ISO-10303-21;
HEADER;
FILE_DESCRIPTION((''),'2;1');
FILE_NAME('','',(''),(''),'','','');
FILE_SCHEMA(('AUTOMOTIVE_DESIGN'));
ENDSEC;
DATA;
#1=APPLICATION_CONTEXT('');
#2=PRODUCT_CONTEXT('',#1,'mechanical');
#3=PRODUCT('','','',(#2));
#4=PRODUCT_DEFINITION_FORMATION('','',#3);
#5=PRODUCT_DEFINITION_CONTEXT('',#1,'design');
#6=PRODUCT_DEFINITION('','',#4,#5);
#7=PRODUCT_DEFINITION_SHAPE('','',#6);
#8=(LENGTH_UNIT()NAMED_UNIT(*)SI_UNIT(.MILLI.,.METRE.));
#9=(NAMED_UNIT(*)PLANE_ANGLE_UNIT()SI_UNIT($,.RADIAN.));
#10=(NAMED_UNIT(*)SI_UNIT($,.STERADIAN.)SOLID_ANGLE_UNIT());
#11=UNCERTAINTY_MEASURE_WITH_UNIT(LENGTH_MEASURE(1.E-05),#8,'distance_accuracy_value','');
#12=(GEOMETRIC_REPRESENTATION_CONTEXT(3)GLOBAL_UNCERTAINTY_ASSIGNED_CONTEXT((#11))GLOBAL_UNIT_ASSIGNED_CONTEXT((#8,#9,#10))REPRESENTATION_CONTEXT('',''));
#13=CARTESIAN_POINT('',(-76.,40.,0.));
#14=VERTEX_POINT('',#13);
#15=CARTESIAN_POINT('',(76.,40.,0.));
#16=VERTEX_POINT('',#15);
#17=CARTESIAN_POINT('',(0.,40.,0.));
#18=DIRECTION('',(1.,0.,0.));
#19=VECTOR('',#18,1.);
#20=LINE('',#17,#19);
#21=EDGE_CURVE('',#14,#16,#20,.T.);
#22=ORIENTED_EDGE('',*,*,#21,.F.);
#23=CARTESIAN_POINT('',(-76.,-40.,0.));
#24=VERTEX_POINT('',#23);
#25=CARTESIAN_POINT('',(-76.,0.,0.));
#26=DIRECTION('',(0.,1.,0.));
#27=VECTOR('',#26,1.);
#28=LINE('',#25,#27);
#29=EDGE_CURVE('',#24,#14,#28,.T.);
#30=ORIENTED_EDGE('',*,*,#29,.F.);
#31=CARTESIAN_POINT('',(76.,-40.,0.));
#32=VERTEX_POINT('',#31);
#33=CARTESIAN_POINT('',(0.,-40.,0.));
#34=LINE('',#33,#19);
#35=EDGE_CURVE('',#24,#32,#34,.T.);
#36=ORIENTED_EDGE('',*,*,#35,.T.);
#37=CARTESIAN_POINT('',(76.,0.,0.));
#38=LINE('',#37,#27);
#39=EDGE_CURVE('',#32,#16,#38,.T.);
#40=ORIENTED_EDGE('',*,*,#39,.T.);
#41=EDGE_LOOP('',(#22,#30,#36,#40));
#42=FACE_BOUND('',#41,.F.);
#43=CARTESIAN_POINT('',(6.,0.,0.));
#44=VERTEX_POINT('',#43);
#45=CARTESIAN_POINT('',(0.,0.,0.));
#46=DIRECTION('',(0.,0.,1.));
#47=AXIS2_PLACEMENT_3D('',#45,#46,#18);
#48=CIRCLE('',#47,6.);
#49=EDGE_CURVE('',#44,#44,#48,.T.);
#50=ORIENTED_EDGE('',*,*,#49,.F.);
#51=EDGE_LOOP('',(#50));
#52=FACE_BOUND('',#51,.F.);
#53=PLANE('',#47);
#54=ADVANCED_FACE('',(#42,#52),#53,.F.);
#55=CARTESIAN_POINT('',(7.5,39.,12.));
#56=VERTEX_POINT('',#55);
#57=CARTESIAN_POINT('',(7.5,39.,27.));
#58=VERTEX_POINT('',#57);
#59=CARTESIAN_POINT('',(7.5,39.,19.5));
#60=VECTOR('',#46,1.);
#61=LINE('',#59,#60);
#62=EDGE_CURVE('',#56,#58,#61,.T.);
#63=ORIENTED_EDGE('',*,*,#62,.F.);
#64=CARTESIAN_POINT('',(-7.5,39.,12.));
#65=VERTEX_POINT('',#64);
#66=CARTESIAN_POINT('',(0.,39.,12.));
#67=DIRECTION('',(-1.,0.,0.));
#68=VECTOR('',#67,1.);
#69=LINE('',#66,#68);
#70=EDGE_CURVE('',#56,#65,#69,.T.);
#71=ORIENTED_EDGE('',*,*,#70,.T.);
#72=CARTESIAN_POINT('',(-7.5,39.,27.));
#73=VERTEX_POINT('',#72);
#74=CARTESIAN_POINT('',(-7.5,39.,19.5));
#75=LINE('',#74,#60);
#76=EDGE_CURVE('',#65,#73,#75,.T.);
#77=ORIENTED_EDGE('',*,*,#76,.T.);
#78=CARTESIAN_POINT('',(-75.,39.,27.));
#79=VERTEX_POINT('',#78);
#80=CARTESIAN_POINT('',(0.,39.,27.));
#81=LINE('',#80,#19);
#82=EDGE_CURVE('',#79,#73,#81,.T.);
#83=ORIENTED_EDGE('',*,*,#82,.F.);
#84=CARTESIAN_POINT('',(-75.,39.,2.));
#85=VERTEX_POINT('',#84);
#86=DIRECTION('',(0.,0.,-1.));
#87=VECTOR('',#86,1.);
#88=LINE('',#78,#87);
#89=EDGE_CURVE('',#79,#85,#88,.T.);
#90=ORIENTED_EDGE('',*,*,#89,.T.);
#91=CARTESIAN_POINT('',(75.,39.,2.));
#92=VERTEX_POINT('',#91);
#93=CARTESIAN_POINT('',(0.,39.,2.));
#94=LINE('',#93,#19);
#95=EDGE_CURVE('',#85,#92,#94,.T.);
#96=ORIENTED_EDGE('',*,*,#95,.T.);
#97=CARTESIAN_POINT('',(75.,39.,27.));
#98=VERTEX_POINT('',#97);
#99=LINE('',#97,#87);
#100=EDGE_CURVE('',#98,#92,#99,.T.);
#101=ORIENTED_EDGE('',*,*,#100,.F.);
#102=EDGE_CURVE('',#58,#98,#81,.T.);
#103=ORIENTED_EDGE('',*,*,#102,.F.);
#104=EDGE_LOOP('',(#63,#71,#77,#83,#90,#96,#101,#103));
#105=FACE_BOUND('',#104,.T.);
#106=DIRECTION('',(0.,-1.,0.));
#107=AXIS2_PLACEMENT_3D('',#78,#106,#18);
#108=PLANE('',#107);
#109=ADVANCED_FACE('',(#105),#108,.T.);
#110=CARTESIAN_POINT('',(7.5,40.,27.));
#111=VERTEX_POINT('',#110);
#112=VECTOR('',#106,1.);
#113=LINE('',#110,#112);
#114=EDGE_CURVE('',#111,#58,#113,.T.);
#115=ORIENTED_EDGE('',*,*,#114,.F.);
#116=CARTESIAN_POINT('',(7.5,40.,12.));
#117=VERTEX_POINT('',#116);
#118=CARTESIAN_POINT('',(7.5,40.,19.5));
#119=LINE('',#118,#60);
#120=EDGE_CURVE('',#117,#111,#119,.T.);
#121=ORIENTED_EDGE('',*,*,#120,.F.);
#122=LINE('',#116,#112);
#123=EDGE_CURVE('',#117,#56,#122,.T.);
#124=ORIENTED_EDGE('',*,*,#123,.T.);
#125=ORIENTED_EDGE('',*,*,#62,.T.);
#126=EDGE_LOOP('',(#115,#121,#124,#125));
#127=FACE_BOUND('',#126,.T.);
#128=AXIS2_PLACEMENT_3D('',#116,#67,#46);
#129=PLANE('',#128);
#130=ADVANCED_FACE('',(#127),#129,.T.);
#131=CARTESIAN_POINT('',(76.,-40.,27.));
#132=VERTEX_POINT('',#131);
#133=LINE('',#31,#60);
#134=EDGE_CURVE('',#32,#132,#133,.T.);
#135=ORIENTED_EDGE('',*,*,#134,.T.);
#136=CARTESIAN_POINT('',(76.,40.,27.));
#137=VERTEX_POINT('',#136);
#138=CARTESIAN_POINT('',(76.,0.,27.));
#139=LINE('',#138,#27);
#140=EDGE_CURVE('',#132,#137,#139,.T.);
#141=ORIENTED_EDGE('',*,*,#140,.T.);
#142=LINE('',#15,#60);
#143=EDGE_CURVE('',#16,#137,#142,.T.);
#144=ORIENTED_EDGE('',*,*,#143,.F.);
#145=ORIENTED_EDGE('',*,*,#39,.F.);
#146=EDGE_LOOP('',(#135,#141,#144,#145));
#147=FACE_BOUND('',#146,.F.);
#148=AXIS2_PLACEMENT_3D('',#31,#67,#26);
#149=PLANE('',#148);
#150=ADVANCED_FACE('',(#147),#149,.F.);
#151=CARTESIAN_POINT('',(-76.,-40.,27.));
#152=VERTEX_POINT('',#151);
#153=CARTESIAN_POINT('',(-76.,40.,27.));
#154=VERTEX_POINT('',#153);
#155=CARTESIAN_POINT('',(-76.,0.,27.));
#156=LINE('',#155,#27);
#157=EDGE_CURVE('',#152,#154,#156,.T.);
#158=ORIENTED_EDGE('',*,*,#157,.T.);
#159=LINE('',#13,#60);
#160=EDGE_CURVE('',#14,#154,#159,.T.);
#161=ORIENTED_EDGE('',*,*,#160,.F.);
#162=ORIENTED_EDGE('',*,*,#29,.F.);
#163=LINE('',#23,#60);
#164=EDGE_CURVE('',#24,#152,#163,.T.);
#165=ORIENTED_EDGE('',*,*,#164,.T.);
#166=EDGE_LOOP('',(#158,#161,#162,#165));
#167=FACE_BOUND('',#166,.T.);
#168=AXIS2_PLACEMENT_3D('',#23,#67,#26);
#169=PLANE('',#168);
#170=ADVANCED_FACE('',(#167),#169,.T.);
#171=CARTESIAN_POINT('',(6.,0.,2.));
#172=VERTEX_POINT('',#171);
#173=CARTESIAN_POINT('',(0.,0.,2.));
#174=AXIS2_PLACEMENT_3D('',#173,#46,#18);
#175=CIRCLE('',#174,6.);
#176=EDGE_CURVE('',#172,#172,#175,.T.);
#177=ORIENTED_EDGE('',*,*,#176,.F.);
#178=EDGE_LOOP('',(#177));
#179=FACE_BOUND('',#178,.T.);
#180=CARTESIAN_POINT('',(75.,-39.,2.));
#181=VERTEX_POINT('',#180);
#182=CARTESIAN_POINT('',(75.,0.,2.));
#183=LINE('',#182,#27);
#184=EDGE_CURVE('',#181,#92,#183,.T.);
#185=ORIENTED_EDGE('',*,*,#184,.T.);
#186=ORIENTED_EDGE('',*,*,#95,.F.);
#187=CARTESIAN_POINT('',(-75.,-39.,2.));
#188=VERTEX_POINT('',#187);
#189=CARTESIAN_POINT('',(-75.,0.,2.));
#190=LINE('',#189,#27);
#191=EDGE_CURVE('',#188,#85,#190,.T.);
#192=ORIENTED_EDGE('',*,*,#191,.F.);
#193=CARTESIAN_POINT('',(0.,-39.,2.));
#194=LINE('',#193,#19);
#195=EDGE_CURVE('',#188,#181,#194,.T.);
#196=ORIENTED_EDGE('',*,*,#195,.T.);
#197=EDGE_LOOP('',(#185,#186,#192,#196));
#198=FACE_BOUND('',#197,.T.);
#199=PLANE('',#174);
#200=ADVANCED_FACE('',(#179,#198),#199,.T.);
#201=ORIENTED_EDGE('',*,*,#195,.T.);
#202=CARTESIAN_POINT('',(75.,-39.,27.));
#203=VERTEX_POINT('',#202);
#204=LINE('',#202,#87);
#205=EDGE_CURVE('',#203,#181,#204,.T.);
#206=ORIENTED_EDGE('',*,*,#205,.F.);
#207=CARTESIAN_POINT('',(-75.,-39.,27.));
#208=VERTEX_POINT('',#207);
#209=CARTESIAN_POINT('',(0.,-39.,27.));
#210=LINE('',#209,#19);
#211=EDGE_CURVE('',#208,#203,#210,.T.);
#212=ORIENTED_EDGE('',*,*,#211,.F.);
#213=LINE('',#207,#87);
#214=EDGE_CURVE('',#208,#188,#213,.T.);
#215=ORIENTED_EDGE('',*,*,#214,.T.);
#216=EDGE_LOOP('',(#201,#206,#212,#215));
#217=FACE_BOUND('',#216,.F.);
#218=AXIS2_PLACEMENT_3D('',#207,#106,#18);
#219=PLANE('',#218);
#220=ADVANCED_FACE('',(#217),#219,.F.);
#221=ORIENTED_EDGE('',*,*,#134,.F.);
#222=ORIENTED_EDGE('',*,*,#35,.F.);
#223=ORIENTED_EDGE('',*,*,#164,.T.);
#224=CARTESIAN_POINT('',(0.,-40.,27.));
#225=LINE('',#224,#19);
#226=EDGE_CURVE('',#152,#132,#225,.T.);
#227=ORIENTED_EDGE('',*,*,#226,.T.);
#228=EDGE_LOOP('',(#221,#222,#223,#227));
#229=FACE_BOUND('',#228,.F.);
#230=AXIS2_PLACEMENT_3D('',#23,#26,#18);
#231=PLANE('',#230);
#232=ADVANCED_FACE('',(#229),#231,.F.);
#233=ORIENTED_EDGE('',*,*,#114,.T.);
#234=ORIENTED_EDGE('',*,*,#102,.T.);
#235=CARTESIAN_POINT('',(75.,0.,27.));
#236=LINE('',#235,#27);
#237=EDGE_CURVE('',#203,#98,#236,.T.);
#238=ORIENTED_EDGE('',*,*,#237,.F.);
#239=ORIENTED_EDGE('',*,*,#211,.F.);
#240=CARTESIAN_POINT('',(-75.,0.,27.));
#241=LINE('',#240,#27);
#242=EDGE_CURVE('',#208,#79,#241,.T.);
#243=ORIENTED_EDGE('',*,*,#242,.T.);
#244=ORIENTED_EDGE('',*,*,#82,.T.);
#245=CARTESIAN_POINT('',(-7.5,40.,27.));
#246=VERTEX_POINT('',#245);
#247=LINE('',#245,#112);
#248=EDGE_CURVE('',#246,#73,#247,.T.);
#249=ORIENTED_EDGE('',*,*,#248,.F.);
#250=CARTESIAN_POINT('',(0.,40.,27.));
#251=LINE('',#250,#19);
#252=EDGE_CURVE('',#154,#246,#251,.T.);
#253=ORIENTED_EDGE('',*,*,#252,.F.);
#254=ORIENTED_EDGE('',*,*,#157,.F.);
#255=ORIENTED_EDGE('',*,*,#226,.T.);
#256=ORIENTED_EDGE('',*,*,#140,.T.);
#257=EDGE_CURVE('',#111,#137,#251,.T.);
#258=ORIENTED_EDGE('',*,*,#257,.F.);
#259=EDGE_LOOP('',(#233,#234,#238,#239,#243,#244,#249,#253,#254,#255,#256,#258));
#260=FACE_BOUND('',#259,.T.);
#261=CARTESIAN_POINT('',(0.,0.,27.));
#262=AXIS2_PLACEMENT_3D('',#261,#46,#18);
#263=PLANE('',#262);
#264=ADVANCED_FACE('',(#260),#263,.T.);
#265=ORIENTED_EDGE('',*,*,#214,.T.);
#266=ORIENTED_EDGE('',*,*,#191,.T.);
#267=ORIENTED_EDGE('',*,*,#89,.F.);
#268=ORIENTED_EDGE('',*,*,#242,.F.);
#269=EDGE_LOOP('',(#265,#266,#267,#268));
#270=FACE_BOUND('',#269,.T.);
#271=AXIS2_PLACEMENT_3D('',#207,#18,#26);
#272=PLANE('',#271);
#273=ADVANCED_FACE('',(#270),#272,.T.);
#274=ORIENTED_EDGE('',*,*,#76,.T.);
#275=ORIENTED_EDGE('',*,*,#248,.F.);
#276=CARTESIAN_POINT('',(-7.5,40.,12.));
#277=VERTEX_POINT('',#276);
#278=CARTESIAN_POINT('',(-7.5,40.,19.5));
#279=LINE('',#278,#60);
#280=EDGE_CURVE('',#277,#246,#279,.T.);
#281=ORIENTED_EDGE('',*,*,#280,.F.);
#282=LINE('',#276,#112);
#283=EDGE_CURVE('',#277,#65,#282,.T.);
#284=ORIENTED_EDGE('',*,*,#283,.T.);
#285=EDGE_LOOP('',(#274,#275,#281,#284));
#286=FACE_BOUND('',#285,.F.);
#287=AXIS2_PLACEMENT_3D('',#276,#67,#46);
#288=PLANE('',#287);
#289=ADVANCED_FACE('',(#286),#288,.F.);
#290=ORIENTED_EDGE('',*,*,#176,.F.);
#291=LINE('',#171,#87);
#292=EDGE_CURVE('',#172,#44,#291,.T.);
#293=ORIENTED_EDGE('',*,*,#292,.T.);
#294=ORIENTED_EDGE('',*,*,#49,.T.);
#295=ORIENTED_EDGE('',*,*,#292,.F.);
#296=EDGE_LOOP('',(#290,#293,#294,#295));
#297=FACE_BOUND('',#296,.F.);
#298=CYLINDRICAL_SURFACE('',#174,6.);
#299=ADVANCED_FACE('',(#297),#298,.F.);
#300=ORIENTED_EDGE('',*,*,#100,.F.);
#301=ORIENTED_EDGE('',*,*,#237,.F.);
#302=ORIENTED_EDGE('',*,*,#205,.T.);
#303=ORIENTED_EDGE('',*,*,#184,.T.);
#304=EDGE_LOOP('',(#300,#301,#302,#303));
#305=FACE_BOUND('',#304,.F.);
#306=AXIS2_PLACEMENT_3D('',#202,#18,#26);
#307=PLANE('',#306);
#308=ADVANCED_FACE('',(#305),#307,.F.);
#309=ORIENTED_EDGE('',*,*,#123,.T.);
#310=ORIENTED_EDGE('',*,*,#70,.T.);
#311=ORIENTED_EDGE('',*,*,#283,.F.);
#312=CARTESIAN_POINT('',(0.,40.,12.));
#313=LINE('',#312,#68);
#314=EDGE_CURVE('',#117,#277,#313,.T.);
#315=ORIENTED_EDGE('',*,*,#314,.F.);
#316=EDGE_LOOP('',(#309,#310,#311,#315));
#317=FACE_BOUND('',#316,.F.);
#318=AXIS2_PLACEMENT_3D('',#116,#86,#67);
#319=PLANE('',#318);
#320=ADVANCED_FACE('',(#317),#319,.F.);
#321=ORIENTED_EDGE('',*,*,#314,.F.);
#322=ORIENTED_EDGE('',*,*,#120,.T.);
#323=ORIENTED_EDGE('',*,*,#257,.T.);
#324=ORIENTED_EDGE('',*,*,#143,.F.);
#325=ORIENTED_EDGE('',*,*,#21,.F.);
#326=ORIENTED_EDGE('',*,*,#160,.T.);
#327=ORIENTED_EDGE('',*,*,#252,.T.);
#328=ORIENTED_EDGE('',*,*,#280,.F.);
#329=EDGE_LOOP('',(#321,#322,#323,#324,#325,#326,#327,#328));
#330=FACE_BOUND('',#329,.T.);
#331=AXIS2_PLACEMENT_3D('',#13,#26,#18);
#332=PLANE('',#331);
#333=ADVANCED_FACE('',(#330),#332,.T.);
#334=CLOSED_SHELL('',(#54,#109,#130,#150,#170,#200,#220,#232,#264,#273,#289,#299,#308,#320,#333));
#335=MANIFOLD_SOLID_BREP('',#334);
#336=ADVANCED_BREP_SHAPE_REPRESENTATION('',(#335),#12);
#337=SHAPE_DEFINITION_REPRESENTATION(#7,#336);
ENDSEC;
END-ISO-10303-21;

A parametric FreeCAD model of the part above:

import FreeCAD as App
import Part
import Sketcher
from FreeCAD import Vector
Q = App.Units.Quantity

doc = App.newDocument("Part")
params = doc.addObject("Spreadsheet::Sheet", "Params")
for row, (alias, value) in enumerate([
    ("sketch1_width", "152 mm"),
    ("sketch1_height", "80 mm"),
    ("pad1_length", "27 mm"),
    ("sketch2_width", "150 mm"),
    ("sketch2_height", "78 mm"),
    ("pocket1_length", "25 mm"),
    ("sketch3_diameter", "12 mm"),
    ("pocket2_length", "5 mm"),
    ("sketch4_width", "15 mm"),
    ("pocket3_length", "1 mm"),
], start=1):
    params.set(f"A{row}", alias)
    params.set(f"B{row}", "=" + value)
    params.setAlias(f"B{row}", alias)

body = doc.addObject("PartDesign::Body", "Body")

sketch1 = body.newObject("Sketcher::SketchObject", "Sketch")
sketch1.AttachmentSupport = (doc.getObject("XY_Plane"), [""])
sketch1.MapMode = "FlatFace"
sketch1.addGeometry([
    Part.LineSegment(Vector(-76, 40, 0), Vector(-76, -40, 0)),
    Part.LineSegment(Vector(-76, -40, 0), Vector(76, -40, 0)),
    Part.LineSegment(Vector(76, -40, 0), Vector(76, 40, 0)),
    Part.LineSegment(Vector(76, 40, 0), Vector(-76, 40, 0)),
], False)
sketch1.addConstraint([
    Sketcher.Constraint("Coincident", 0, 2, 1, 1),
    Sketcher.Constraint("Coincident", 1, 2, 2, 1),
    Sketcher.Constraint("Coincident", 2, 2, 3, 1),
    Sketcher.Constraint("Coincident", 3, 2, 0, 1),
    Sketcher.Constraint("Vertical", 0),
    Sketcher.Constraint("Horizontal", 1),
    Sketcher.Constraint("Vertical", 2),
    Sketcher.Constraint("Horizontal", 3),
    Sketcher.Constraint("Symmetric", 0, 2, 2, 2, -1, 1),
    Sketcher.Constraint("DistanceX", 1, 1, 1, 2, Q("152 mm")),
    Sketcher.Constraint("DistanceY", 0, 2, 0, 1, Q("80 mm")),
])
sketch1.setExpression("Constraints[9]", "Params.sketch1_width")
sketch1.setExpression("Constraints[10]", "Params.sketch1_height")
pad1 = body.newObject("PartDesign::Pad", "Pad")
pad1.Profile = sketch1
pad1.setExpression("Length", "Params.pad1_length")

sketch2 = body.newObject("Sketcher::SketchObject", "Sketch001")
sketch2.AttachmentSupport = (doc.getObject("XY_Plane"), [""])
sketch2.MapMode = "FlatFace"
sketch2.AttachmentOffset = App.Placement(Vector(0, 0, 27), App.Rotation())
sketch2.addGeometry([
    Part.LineSegment(Vector(-75, 39, 0), Vector(-75, -39, 0)),
    Part.LineSegment(Vector(-75, -39, 0), Vector(75, -39, 0)),
    Part.LineSegment(Vector(75, -39, 0), Vector(75, 39, 0)),
    Part.LineSegment(Vector(75, 39, 0), Vector(-75, 39, 0)),
], False)
sketch2.addConstraint([
    Sketcher.Constraint("Coincident", 0, 2, 1, 1),
    Sketcher.Constraint("Coincident", 1, 2, 2, 1),
    Sketcher.Constraint("Coincident", 2, 2, 3, 1),
    Sketcher.Constraint("Coincident", 3, 2, 0, 1),
    Sketcher.Constraint("Vertical", 0),
    Sketcher.Constraint("Horizontal", 1),
    Sketcher.Constraint("Vertical", 2),
    Sketcher.Constraint("Horizontal", 3),
    Sketcher.Constraint("Symmetric", 0, 2, 2, 2, -1, 1),
    Sketcher.Constraint("DistanceX", 1, 1, 1, 2, Q("150 mm")),
    Sketcher.Constraint("DistanceY", 0, 2, 0, 1, Q("78 mm")),
])
sketch2.setExpression("Constraints[9]", "Params.sketch2_width")
sketch2.setExpression("Constraints[10]", "Params.sketch2_height")
pocket1 = body.newObject("PartDesign::Pocket", "Pocket")
pocket1.Profile = sketch2
pocket1.setExpression("Length", "Params.pocket1_length")

sketch3 = body.newObject("Sketcher::SketchObject", "Sketch002")
sketch3.AttachmentSupport = (doc.getObject("XY_Plane"), [""])
sketch3.MapMode = "FlatFace"
sketch3.AttachmentOffset = App.Placement(Vector(0, 0, 2), App.Rotation())
sketch3.addGeometry(Part.Circle(Vector(0, 0, 0), Vector(0, 0, 1), 6), False)
sketch3.addConstraint([
    Sketcher.Constraint("Coincident", 0, 3, -1, 1),
    Sketcher.Constraint("Diameter", 0, Q("12 mm")),
])
sketch3.setExpression("Constraints[1]", "Params.sketch3_diameter")
pocket2 = body.newObject("PartDesign::Pocket", "Pocket001")
pocket2.Profile = sketch3
pocket2.setExpression("Length", "Params.pocket2_length")

sketch4 = body.newObject("Sketcher::SketchObject", "Sketch003")
sketch4.AttachmentSupport = (doc.getObject("XZ_Plane"), [""])
sketch4.MapMode = "FlatFace"
sketch4.AttachmentOffset = App.Placement(Vector(0, 0, -40), App.Rotation())
sketch4.addGeometry([
    Part.LineSegment(Vector(8, 27, 0), Vector(8, 12, 0)),
    Part.LineSegment(Vector(8, 12, 0), Vector(-8, 12, 0)),
    Part.LineSegment(Vector(-8, 12, 0), Vector(-8, 27, 0)),
    Part.LineSegment(Vector(-8, 27, 0), Vector(8, 27, 0)),
], False)
sketch4.addConstraint([
    Sketcher.Constraint("Coincident", 0, 2, 1, 1),
    Sketcher.Constraint("Coincident", 1, 2, 2, 1),
    Sketcher.Constraint("Coincident", 2, 2, 3, 1),
    Sketcher.Constraint("Coincident", 3, 2, 0, 1),
    Sketcher.Constraint("Vertical", 0),
    Sketcher.Constraint("Horizontal", 1),
    Sketcher.Constraint("Vertical", 2),
    Sketcher.Constraint("Horizontal", 3),
    Sketcher.Constraint("Equal", 3, 0),
    Sketcher.Constraint("DistanceX", 1, 2, 1, 1, Q("15 mm")),
    Sketcher.Constraint("DistanceY", -1, 1, 0, 2, Q("12 mm")),
    Sketcher.Constraint("DistanceX", -1, 1, 0, 2, Q("7.5 mm")),
])
sketch4.setExpression("Constraints[9]", "Params.sketch4_width")
pocket3 = body.newObject("PartDesign::Pocket", "Pocket002")
pocket3.Profile = sketch4
pocket3.setExpression("Length", "Params.pocket3_length")
pocket3.Reversed = True

doc.recompute()
